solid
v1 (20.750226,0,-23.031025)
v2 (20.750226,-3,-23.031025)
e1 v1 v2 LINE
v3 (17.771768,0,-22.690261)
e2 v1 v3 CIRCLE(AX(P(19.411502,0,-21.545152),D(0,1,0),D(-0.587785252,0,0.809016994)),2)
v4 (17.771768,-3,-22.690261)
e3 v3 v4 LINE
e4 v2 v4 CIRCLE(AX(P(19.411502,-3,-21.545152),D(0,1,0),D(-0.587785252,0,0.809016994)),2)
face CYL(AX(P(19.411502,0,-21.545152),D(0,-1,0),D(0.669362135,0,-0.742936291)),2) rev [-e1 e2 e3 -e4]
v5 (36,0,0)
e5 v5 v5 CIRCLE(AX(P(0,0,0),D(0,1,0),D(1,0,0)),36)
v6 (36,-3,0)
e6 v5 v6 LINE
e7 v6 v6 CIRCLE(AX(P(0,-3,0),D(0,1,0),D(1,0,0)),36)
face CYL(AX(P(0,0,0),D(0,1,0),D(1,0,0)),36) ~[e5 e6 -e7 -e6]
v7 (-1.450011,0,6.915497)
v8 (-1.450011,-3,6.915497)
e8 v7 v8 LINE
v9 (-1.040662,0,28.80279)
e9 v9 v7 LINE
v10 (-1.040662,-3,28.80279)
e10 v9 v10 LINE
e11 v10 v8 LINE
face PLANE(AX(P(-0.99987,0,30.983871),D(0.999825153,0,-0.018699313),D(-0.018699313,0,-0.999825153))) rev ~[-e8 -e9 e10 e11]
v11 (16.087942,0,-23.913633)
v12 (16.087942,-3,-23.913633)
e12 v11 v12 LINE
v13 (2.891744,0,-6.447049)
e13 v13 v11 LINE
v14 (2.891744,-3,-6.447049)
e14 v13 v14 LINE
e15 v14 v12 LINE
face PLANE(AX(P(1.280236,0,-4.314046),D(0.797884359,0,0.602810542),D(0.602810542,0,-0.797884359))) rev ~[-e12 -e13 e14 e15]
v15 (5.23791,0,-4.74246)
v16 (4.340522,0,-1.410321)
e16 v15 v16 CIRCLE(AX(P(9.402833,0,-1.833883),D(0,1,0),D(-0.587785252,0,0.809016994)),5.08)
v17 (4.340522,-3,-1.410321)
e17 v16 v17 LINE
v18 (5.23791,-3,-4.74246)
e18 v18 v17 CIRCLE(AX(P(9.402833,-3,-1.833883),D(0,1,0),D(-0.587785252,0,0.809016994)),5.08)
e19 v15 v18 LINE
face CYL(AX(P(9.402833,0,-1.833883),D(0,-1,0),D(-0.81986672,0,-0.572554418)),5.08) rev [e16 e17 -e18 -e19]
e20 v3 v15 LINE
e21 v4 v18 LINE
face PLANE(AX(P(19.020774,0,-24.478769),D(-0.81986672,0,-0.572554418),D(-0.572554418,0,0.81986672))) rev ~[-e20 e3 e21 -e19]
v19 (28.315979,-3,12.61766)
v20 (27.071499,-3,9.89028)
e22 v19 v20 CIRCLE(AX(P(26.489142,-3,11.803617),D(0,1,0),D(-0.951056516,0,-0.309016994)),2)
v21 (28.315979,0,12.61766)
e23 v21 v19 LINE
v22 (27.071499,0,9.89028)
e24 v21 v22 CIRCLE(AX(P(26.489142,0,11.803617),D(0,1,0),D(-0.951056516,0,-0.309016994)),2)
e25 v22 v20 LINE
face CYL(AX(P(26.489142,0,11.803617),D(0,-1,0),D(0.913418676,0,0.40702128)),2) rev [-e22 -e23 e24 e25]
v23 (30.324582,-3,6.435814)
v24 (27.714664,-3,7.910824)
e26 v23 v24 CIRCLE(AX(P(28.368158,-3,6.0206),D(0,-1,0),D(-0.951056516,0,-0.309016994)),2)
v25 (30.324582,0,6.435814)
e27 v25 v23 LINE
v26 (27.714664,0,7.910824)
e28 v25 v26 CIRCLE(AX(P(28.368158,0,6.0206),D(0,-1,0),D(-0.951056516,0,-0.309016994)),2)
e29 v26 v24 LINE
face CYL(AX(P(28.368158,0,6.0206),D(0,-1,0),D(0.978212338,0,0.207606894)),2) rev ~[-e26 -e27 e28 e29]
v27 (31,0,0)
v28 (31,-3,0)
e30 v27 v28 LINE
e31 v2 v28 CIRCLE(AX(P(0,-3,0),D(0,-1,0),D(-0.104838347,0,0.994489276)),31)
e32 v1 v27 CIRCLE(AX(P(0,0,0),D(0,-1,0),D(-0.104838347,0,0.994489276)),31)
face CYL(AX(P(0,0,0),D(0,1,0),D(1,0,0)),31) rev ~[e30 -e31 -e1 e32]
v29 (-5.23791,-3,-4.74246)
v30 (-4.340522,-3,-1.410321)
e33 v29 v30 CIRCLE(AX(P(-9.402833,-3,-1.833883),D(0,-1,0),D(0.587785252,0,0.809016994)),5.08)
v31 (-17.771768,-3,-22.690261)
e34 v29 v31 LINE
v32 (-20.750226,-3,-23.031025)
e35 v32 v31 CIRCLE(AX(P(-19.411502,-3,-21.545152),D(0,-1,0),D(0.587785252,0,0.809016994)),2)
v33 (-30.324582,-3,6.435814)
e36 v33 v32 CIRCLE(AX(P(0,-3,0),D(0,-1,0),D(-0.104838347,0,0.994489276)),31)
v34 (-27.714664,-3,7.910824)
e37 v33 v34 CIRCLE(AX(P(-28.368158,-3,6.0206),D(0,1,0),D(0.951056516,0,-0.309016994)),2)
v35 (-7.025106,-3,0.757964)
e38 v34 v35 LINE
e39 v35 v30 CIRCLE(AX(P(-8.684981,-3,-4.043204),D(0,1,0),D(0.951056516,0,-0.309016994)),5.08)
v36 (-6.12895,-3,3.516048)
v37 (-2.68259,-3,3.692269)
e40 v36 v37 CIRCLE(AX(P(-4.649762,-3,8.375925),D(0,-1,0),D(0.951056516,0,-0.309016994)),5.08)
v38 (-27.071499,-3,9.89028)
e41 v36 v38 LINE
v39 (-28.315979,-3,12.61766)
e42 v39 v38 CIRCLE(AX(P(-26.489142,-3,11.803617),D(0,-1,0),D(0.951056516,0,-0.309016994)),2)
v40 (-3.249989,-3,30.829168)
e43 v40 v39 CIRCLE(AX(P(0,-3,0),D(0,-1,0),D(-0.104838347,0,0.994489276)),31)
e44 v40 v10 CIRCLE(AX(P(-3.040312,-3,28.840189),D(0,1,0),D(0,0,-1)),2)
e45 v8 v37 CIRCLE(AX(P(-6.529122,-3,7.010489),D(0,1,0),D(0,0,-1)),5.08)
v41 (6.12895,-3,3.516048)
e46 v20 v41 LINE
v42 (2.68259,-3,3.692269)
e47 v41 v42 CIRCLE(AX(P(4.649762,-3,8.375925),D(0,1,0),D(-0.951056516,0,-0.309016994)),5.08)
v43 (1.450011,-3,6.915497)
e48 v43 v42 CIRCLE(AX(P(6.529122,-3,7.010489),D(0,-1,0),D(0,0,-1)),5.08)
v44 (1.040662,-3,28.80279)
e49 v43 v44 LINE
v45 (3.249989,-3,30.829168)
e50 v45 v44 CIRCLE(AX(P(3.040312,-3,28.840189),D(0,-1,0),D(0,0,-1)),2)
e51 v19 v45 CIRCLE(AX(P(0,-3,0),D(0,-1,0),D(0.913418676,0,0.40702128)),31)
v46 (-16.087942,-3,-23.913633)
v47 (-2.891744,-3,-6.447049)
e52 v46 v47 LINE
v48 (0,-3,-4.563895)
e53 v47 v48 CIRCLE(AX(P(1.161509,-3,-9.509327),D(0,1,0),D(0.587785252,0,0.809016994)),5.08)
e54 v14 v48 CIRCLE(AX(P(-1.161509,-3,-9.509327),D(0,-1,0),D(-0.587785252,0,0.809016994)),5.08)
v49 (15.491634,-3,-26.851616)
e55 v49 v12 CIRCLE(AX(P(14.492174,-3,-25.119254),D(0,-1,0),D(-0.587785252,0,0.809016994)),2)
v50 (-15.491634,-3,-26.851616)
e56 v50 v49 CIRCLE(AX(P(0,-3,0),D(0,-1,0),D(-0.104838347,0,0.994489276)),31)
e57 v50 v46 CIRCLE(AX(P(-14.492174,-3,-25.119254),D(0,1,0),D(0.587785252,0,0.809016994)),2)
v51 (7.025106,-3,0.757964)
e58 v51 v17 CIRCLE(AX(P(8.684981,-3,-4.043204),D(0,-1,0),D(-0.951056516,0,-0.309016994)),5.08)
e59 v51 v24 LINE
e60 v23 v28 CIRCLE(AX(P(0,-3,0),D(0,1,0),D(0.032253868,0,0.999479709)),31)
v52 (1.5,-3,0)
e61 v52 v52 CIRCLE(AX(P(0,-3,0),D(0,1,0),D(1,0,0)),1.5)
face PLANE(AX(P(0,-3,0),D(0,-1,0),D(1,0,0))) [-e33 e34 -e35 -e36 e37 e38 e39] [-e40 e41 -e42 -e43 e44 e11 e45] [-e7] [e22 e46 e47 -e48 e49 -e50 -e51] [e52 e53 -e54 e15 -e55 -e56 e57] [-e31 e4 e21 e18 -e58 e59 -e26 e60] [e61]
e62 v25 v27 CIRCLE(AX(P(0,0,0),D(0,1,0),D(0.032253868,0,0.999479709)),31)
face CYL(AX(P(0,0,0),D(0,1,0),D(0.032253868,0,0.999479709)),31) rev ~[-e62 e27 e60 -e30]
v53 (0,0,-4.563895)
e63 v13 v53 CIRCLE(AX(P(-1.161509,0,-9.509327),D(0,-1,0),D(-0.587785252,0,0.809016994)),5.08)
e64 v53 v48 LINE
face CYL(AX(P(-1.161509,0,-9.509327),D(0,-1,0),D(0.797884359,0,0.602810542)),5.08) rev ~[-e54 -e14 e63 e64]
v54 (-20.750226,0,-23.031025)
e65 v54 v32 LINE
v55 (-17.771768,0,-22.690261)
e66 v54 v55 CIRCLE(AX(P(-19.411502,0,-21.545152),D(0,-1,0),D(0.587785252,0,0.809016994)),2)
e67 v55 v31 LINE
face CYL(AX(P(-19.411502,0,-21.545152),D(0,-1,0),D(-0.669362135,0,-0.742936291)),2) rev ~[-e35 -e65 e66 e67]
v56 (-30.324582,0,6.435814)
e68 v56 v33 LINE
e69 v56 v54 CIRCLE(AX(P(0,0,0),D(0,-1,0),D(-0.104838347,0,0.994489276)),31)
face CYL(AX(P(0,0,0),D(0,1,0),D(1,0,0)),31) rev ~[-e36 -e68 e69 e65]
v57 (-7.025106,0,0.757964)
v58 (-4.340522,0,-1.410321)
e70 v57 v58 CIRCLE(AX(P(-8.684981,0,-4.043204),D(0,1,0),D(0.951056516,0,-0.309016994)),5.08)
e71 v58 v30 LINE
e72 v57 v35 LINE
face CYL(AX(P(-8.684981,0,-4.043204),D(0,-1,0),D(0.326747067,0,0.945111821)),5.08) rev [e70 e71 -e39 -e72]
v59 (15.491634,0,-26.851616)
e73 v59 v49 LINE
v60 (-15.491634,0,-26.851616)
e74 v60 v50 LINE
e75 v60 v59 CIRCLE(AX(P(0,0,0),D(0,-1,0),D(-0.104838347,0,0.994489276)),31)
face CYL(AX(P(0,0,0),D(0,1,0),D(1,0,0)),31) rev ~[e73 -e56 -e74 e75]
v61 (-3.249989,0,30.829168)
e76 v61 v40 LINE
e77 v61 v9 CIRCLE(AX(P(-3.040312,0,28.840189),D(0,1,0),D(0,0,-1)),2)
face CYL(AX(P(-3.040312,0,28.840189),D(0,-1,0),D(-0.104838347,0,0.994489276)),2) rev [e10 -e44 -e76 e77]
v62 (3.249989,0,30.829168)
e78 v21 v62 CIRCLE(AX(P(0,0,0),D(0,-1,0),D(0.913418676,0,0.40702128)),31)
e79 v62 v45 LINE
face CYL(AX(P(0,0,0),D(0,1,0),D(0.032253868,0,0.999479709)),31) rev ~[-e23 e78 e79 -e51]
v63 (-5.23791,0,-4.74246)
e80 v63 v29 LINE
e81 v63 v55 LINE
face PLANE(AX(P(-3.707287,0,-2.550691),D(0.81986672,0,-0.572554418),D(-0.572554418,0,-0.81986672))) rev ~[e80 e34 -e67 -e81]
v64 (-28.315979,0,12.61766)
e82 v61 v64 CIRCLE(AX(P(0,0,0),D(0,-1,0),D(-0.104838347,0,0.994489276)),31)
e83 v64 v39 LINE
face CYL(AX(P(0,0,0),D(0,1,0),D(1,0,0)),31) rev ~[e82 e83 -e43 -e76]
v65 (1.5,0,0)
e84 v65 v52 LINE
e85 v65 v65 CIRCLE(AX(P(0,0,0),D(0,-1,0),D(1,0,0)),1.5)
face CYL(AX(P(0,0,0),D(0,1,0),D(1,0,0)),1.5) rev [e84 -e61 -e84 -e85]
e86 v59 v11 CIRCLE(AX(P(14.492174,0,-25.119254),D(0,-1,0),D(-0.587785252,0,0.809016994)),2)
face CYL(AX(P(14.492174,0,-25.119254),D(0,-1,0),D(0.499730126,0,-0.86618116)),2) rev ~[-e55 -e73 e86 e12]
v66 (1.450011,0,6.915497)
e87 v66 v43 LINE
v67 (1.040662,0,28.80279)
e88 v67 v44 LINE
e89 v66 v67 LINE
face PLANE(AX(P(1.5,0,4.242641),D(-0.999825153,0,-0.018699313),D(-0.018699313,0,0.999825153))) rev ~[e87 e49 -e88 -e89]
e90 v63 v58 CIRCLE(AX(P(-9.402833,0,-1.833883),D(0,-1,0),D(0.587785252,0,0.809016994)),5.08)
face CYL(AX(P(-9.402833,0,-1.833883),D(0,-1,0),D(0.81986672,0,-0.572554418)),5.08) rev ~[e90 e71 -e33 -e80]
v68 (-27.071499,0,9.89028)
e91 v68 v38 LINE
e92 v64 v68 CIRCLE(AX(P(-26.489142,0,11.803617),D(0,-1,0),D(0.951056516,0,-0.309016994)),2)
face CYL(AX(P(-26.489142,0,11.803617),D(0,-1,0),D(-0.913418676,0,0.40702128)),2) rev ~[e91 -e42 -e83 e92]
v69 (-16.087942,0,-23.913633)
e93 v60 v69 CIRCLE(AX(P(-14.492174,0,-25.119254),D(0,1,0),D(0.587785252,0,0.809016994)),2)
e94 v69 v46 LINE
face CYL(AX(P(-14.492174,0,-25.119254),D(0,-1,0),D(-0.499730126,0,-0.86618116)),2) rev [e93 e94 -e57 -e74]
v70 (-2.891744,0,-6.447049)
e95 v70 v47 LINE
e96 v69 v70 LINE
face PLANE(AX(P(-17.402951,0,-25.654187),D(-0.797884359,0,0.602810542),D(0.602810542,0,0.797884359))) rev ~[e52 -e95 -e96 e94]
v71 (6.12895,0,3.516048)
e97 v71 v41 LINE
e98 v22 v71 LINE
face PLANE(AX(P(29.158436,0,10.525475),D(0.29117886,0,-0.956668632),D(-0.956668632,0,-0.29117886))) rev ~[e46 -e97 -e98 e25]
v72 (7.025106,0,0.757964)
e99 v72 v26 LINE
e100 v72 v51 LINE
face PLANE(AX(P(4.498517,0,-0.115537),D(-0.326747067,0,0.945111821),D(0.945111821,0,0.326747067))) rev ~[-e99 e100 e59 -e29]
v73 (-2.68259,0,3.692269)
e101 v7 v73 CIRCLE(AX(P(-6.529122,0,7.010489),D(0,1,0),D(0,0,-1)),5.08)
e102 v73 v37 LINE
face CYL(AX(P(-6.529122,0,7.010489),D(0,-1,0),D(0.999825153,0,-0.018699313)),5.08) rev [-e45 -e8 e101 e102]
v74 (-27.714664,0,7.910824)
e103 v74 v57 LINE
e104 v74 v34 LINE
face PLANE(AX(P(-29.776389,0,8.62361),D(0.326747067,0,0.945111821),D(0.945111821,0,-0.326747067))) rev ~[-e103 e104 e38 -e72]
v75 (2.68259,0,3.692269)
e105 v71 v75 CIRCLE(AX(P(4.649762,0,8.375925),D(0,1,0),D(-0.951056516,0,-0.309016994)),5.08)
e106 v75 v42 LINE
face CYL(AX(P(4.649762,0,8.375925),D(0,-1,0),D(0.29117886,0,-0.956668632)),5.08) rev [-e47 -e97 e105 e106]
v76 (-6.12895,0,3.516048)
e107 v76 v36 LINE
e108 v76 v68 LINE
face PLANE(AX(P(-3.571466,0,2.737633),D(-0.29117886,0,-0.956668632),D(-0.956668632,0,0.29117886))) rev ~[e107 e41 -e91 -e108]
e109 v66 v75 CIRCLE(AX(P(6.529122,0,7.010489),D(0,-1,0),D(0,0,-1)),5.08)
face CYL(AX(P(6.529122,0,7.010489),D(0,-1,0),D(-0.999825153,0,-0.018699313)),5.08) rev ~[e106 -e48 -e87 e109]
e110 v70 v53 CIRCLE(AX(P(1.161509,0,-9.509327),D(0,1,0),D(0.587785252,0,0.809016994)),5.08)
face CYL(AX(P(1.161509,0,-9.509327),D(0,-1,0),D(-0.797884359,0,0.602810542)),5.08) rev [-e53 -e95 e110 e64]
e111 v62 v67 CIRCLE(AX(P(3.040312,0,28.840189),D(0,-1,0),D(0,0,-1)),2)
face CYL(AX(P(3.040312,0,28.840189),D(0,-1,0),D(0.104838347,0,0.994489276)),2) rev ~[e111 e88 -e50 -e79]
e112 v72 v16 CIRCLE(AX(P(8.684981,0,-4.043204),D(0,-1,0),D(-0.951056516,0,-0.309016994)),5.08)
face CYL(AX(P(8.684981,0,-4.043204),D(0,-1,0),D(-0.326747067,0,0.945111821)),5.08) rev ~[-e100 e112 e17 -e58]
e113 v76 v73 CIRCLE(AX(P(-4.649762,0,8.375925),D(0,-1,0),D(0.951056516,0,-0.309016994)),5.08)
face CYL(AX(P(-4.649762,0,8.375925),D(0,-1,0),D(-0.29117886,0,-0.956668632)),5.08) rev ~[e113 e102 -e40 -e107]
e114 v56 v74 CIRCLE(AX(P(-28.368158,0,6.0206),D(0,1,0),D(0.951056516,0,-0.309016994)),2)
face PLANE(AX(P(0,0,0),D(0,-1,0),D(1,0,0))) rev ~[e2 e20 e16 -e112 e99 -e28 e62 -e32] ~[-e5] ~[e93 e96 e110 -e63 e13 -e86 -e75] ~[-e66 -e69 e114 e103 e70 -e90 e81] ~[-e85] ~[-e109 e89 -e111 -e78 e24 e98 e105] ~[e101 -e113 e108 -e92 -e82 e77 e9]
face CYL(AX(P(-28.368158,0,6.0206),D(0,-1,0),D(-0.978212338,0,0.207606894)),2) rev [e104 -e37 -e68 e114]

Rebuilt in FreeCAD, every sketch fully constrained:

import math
import FreeCAD as App
import Part
import Sketcher
from FreeCAD import Vector


def edges_at(feature, points):
    """Names of the edges that pass closest to the given points."""
    edges = feature.Shape.Edges
    near = lambda p: min(range(len(edges)), key=lambda i: edges[i].distToShape(Part.Vertex(*p))[0])
    return sorted({f"Edge{near(p) + 1}" for p in points})

doc = App.newDocument("Part")
body = doc.addObject("PartDesign::Body", "Body")

# Sketch on XZ plane
sketch1 = doc.addObject("Sketcher::SketchObject", "Sketch")
body.addObject(sketch1)
sketch1.AttachmentSupport = (doc.XZ_Plane, [""])
sketch1.MapMode = "FlatFace"
sketch1.addGeometry(Part.Circle(Vector(0, 0, 0), Vector(0, 0, 1), 36), False)
sketch1.addGeometry(Part.Circle(Vector(0, 0, 0), Vector(0, 0, 1), 1.5), False)
sketch1.addGeometry(Part.ArcOfCircle(Part.Circle(Vector(0, 0, 0), Vector(0, 0, 1), 31), math.radians(92), math.radians(360)), False)
sketch1.addGeometry(Part.LineSegment(Vector(-1, 31, 0), Vector(-1.5, 4.2, 0)), False)
sketch1.addGeometry(Part.ArcOfCircle(Part.Circle(Vector(0, 0, 0), Vector(0, 0, 1), 4.5), math.radians(109), math.radians(360)), False)
sketch1.addGeometry(Part.ArcOfCircle(Part.Circle(Vector(0, 0, 0), Vector(0, 0, 1), 4.5), math.radians(0), math.radians(71)), False)
sketch1.addGeometry(Part.LineSegment(Vector(1.5, 4.2, 0), Vector(1, 31, 0)), False)
sketch1.addGeometry(Part.ArcOfCircle(Part.Circle(Vector(0, 0, 0), Vector(0, 0, 1), 31), math.radians(0), math.radians(88)), False)
sketch1.addConstraint(Sketcher.Constraint("Coincident", 2, 1, 3, 1))
sketch1.addConstraint(Sketcher.Constraint("Coincident", 3, 2, 4, 1))
sketch1.addConstraint(Sketcher.Constraint("Tangent", 4, 2, 5, 1))
sketch1.addConstraint(Sketcher.Constraint("Coincident", 5, 2, 6, 1))
sketch1.addConstraint(Sketcher.Constraint("Coincident", 6, 2, 7, 2))
sketch1.addConstraint(Sketcher.Constraint("Tangent", 7, 1, 2, 2))
sketch1.addConstraint(Sketcher.Constraint("Coincident", 0, 3, -1, 1))
sketch1.addConstraint(Sketcher.Constraint("Coincident", 1, 3, -1, 1))
sketch1.addConstraint(Sketcher.Constraint("Coincident", 2, 3, -1, 1))
sketch1.addConstraint(Sketcher.Constraint("Coincident", 4, 3, -1, 1))
sketch1.addConstraint(Sketcher.Constraint("Equal", 4, 5))
sketch1.addConstraint(Sketcher.Constraint("Equal", 2, 7))
sketch1.addConstraint(Sketcher.Constraint("PointOnObject", 4, 2, -1))
sketch1.addConstraint(Sketcher.Constraint("PointOnObject", 7, 1, -1))
sketch1.addConstraint(Sketcher.Constraint("Horizontal", 3, 2, 5, 2))
sketch1.addConstraint(Sketcher.Constraint("Horizontal", 2, 1, 6, 2))
sketch1.addConstraint(Sketcher.Constraint("Diameter", 0, 72.0))
sketch1.addConstraint(Sketcher.Constraint("Diameter", 1, 3.0))
sketch1.addConstraint(Sketcher.Constraint("Radius", 2, 31.0))
sketch1.addConstraint(Sketcher.Constraint("Radius", 4, 4.5))
sketch1.addConstraint(Sketcher.Constraint("DistanceX", 3, 2, 5, 2, 3.0))
sketch1.addConstraint(Sketcher.Constraint("DistanceX", 2, 1, -1, 1, 0.99987))
pad1 = doc.addObject("PartDesign::Pad", "Pad")
body.addObject(pad1)
pad1.Profile = sketch1
pad1.Length = 3
doc.recompute()

fillet = doc.addObject("PartDesign::Fillet", "Fillet")
body.addObject(fillet)
fillet.Base = (pad1, edges_at(pad1, [(1, -1.5, 30.984), (-1, -1.5, 30.984)]))
fillet.Radius = 2
doc.recompute()

fillet2 = doc.addObject("PartDesign::Fillet", "Fillet001")
body.addObject(fillet2)
fillet2.Base = (fillet, edges_at(fillet, [(-1.5, -1.5, 4.243), (1.5, -1.5, 4.243)]))
fillet2.Radius = 5.08
body2 = doc.addObject("PartDesign::Body", "Body001")
doc.recompute()

body2.BaseFeature = body
doc.recompute()

body3 = doc.addObject("PartDesign::Body", "Body002")
body3.BaseFeature = body
body3.Placement = App.Placement(Vector(0, 0, 0), App.Rotation(Vector(0, 1, 0), 72))
boolean = doc.addObject("PartDesign::Boolean", "Boolean")
body2.addObject(boolean)
boolean.Type = "Fuse"
boolean.addObjects([body3])
doc.recompute()

body4 = doc.addObject("PartDesign::Body", "Body003")
body4.BaseFeature = body
body4.Placement = App.Placement(Vector(0, 0, 0), App.Rotation(Vector(0, 1, 0), 144))
boolean2 = doc.addObject("PartDesign::Boolean", "Boolean001")
body2.addObject(boolean2)
boolean2.Type = "Fuse"
boolean2.addObjects([body4])
doc.recompute()

body5 = doc.addObject("PartDesign::Body", "Body004")
body5.BaseFeature = body
body5.Placement = App.Placement(Vector(0, 0, 0), App.Rotation(Vector(0, 1, 0), 216))
boolean3 = doc.addObject("PartDesign::Boolean", "Boolean002")
body2.addObject(boolean3)
boolean3.Type = "Fuse"
boolean3.addObjects([body5])
doc.recompute()

body.Placement = App.Placement(Vector(0, 0, 0), App.Rotation(Vector(0, 1, 0), 288))
boolean4 = doc.addObject("PartDesign::Boolean", "Boolean003")
body2.addObject(boolean4)
boolean4.Type = "Fuse"
boolean4.addObjects([body])

doc.recompute()
